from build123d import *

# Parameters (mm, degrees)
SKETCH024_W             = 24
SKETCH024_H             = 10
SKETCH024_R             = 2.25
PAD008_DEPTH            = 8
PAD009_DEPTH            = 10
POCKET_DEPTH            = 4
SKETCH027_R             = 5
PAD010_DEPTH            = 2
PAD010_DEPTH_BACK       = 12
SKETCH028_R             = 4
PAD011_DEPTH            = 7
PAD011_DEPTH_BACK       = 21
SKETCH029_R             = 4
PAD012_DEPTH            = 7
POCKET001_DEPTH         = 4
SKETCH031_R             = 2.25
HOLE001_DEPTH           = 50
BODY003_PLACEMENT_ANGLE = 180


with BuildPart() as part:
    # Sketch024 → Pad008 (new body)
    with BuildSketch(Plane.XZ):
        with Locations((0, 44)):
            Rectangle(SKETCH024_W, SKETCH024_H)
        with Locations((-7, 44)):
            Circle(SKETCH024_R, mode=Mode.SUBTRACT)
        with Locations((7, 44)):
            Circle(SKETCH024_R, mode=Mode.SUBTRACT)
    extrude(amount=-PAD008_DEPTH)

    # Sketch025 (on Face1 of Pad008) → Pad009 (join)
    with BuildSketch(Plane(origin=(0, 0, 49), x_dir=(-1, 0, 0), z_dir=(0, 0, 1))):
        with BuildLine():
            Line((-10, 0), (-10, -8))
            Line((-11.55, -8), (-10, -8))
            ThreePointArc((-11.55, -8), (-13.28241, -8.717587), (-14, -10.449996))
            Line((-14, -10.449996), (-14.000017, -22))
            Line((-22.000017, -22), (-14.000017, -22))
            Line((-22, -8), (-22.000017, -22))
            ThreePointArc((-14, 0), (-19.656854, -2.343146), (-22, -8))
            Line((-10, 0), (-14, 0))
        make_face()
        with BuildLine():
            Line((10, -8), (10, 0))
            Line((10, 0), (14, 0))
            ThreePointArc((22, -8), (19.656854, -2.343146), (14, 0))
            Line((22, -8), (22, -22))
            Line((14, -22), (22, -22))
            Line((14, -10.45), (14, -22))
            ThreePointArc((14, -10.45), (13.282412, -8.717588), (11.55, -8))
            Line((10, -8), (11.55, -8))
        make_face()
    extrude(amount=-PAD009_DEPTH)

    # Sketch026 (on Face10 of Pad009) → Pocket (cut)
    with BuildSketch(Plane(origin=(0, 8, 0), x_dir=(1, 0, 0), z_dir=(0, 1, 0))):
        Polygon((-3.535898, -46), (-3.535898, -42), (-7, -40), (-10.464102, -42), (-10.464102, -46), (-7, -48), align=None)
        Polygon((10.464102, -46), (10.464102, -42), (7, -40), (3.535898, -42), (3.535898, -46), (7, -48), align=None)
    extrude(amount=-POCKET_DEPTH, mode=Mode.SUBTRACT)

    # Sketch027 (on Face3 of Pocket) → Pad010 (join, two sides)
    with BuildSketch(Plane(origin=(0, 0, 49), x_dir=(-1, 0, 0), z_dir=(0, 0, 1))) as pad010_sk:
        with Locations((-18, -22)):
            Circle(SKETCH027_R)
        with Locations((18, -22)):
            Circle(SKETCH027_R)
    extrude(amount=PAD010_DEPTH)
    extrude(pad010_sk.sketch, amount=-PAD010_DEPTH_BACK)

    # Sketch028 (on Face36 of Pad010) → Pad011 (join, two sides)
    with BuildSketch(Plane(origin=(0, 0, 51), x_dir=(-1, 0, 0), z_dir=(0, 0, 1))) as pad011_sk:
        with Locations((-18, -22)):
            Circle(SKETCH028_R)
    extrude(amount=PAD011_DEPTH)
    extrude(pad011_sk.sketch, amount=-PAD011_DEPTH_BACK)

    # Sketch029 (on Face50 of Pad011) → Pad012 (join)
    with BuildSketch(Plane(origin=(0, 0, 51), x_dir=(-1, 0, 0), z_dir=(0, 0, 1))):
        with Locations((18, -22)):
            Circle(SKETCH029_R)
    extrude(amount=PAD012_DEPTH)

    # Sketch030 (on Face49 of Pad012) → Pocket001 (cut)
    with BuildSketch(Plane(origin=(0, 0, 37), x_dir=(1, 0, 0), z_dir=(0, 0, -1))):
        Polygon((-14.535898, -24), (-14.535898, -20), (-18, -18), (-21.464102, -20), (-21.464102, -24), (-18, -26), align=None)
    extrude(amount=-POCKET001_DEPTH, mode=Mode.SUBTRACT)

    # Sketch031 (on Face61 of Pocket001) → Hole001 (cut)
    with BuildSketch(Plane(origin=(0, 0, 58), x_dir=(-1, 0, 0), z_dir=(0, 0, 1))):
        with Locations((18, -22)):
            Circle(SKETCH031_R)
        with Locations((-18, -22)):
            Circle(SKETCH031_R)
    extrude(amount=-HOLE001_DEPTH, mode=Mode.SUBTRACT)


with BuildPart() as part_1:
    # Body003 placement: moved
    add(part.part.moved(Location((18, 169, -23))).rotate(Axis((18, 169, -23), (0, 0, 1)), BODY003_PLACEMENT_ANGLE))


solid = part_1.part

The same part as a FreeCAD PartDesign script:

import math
import FreeCAD as App
import Part
import Sketcher

V = App.Vector
Q = App.Units.Quantity

doc = App.newDocument("Part")
params = doc.addObject("Spreadsheet::Sheet", "Params")
for row, (alias, value) in enumerate([
    ("sketch1_diameter", "4.5 mm"),
    ("sketch1_width", "24 mm"),
    ("sketch1_height", "10 mm"),
    ("pad1_length", "8 mm"),
    ("sketch2_radius", "8.000001 mm"),
    ("sketch2_width", "4 mm"),
    ("sketch2_height", "14 mm"),
    ("sketch2_radius2", "2.45 mm"),
    ("pad2_length", "10 mm"),
    ("sketch3_height", "4 mm"),
    ("sketch3_length", "4 mm"),
    ("pocket1_length", "4 mm"),
    ("sketch4_diameter", "10 mm"),
    ("pad3_length", "2 mm"),
    ("pad3_length2", "12 mm"),
    ("sketch5_diameter", "8 mm"),
    ("pad4_length", "7 mm"),
    ("pad4_length2", "21 mm"),
    ("sketch6_diameter", "8 mm"),
    ("pad5_length", "7 mm"),
    ("sketch7_height", "4 mm"),
    ("sketch7_length", "4 mm"),
    ("pocket2_length", "4 mm"),
    ("sketch8_diameter", "4.5 mm"),
    ("pocket3_length", "50 mm"),
], start=1):
    params.set(f"A{row}", alias)
    params.set(f"B{row}", "=" + value)
    params.setAlias(f"B{row}", alias)

body = doc.addObject("PartDesign::Body", "Body")

# Sketch on XZ plane
sketch1 = body.newObject("Sketcher::SketchObject", "Sketch")
sketch1.AttachmentSupport = (doc.getObject("XZ_Plane"), [""])
sketch1.MapMode = "FlatFace"
sketch1.addGeometry(Part.LineSegment(V(-12, 49, 0), V(-12, 39, 0)), False)
sketch1.addGeometry(Part.LineSegment(V(-12, 39, 0), V(12, 39, 0)), False)
sketch1.addGeometry(Part.LineSegment(V(12, 39, 0), V(12, 49, 0)), False)
sketch1.addGeometry(Part.LineSegment(V(12, 49, 0), V(-12, 49, 0)), False)
sketch1.addGeometry(Part.Circle(V(-7, 44, 0), V(0, 0, 1), 2.2), False)
sketch1.addGeometry(Part.Circle(V(7, 44, 0), V(0, 0, 1), 2.2), False)
sketch1.addConstraint(Sketcher.Constraint("Coincident", 0, 2, 1, 1))
sketch1.addConstraint(Sketcher.Constraint("Coincident", 1, 2, 2, 1))
sketch1.addConstraint(Sketcher.Constraint("Coincident", 2, 2, 3, 1))
sketch1.addConstraint(Sketcher.Constraint("Coincident", 3, 2, 0, 1))
sketch1.addConstraint(Sketcher.Constraint("Vertical", 0))
sketch1.addConstraint(Sketcher.Constraint("Horizontal", 1))
sketch1.addConstraint(Sketcher.Constraint("Vertical", 2))
sketch1.addConstraint(Sketcher.Constraint("Horizontal", 3))
sketch1.addConstraint(Sketcher.Constraint("Equal", 4, 5))
sketch1.addConstraint(Sketcher.Constraint("Symmetric", 4, 3, 5, 3, -2))
sketch1.addConstraint(Sketcher.Constraint("Diameter", 4, Q("4.5 mm")))
sketch1.addConstraint(Sketcher.Constraint("DistanceX", 1, 1, 1, 2, Q("24 mm")))
sketch1.addConstraint(Sketcher.Constraint("DistanceY", 0, 2, 0, 1, Q("10 mm")))
sketch1.addConstraint(Sketcher.Constraint("DistanceX", 4, 3, -1, 1, Q("7 mm")))
sketch1.addConstraint(Sketcher.Constraint("DistanceY", -1, 1, 4, 3, Q("44 mm")))
sketch1.addConstraint(Sketcher.Constraint("DistanceX", 0, 2, -1, 1, Q("12 mm")))
sketch1.addConstraint(Sketcher.Constraint("DistanceY", -1, 1, 0, 2, Q("39 mm")))
sketch1.setExpression("Constraints[10]", "Params.sketch1_diameter")
sketch1.setExpression("Constraints[11]", "Params.sketch1_width")
sketch1.setExpression("Constraints[12]", "Params.sketch1_height")
pad1 = body.newObject("PartDesign::Pad", "Pad")
pad1.Profile = sketch1
pad1.setExpression("Length", "Params.pad1_length")
pad1.Reversed = True

# Sketch on XY plane
sketch2 = body.newObject("Sketcher::SketchObject", "Sketch001")
sketch2.AttachmentSupport = (doc.getObject("XY_Plane"), [""])
sketch2.MapMode = "FlatFace"
sketch2.AttachmentOffset = App.Placement(V(0, 0, 49), App.Rotation())
sketch2.addGeometry(Part.LineSegment(V(10, 8, 0), V(10, 0, 0)), False)
sketch2.addGeometry(Part.LineSegment(V(10, 0, 0), V(14, 0, 0)), False)
sketch2.addGeometry(Part.ArcOfCircle(Part.Circle(V(14, 8, 0), V(0, 0, 1), 8), math.radians(-90), math.radians(0)), False)
sketch2.addGeometry(Part.LineSegment(V(22, 8, 0), V(22, 22, 0)), False)
sketch2.addGeometry(Part.LineSegment(V(22, 22, 0), V(14, 22, 0)), False)
sketch2.addGeometry(Part.LineSegment(V(14, 22, 0), V(14, 10.4, 0)), False)
sketch2.addGeometry(Part.ArcOfCircle(Part.Circle(V(11.5, 10.5, 0), V(0, 0, 1), 2.5), math.radians(-90), math.radians(0)), False)
sketch2.addGeometry(Part.LineSegment(V(11.6, 8, 0), V(10, 8, 0)), False)
sketch2.addGeometry(Part.LineSegment(V(-10, 0, 0), V(-10, 8, 0)), False)
sketch2.addGeometry(Part.LineSegment(V(-10, 8, 0), V(-11.6, 8, 0)), False)
sketch2.addGeometry(Part.ArcOfCircle(Part.Circle(V(-11.6, 10.4, 0), V(0, 0, 1), 2.4), math.radians(180), math.radians(270)), False)
sketch2.addGeometry(Part.LineSegment(V(-14, 10.4, 0), V(-14, 22, 0)), False)
sketch2.addGeometry(Part.LineSegment(V(-14, 22, 0), V(-22, 22, 0)), False)
sketch2.addGeometry(Part.LineSegment(V(-22, 22, 0), V(-22, 8, 0)), False)
sketch2.addGeometry(Part.ArcOfCircle(Part.Circle(V(-14, 8, 0), V(0, 0, 1), 8), math.radians(-180), math.radians(-90)), False)
sketch2.addGeometry(Part.LineSegment(V(-14, 0, 0), V(-10, 0, 0)), False)
sketch2.addConstraint(Sketcher.Constraint("Coincident", 0, 2, 1, 1))
sketch2.addConstraint(Sketcher.Constraint("Tangent", 1, 2, 2, 1))
sketch2.addConstraint(Sketcher.Constraint("Tangent", 2, 2, 3, 1))
sketch2.addConstraint(Sketcher.Constraint("Coincident", 3, 2, 4, 1))
sketch2.addConstraint(Sketcher.Constraint("Coincident", 4, 2, 5, 1))
sketch2.addConstraint(Sketcher.Constraint("Tangent", 5, 2, 6, 2))
sketch2.addConstraint(Sketcher.Constraint("Tangent", 6, 1, 7, 1))
sketch2.addConstraint(Sketcher.Constraint("Coincident", 7, 2, 0, 1))
sketch2.addConstraint(Sketcher.Constraint("Coincident", 8, 2, 9, 1))
sketch2.addConstraint(Sketcher.Constraint("Tangent", 9, 2, 10, 2))
sketch2.addConstraint(Sketcher.Constraint("Tangent", 10, 1, 11, 1))
sketch2.addConstraint(Sketcher.Constraint("Coincident", 11, 2, 12, 1))
sketch2.addConstraint(Sketcher.Constraint("Coincident", 12, 2, 13, 1))
sketch2.addConstraint(Sketcher.Constraint("Tangent", 13, 2, 14, 1))
sketch2.addConstraint(Sketcher.Constraint("Tangent", 14, 2, 15, 1))
sketch2.addConstraint(Sketcher.Constraint("Coincident", 15, 2, 8, 1))
sketch2.addConstraint(Sketcher.Constraint("Vertical", 0))
sketch2.addConstraint(Sketcher.Constraint("Horizontal", 1))
sketch2.addConstraint(Sketcher.Constraint("Horizontal", 4))
sketch2.addConstraint(Sketcher.Constraint("Horizontal", 7))
sketch2.addConstraint(Sketcher.Constraint("Vertical", 8))
sketch2.addConstraint(Sketcher.Constraint("Horizontal", 9))
sketch2.addConstraint(Sketcher.Constraint("Vertical", 11))
sketch2.addConstraint(Sketcher.Constraint("Horizontal", 12))
sketch2.addConstraint(Sketcher.Constraint("Vertical", 13))
sketch2.addConstraint(Sketcher.Constraint("Horizontal", 15))
sketch2.addConstraint(Sketcher.Constraint("Equal", 6, 10))
sketch2.addConstraint(Sketcher.Constraint("Equal", 2, 14))
sketch2.addConstraint(Sketcher.Constraint("Symmetric", 1, 2, 14, 2, -1, 1))
sketch2.addConstraint(Sketcher.Constraint("Symmetric", 6, 3, 10, 3, -2))
sketch2.addConstraint(Sketcher.Constraint("Symmetric", 0, 2, 15, 2, -2))
sketch2.addConstraint(Sketcher.Constraint("Parallel", 3, 5))
sketch2.addConstraint(Sketcher.Constraint("Horizontal", 14, 3, 2, 2))
sketch2.addConstraint(Sketcher.Constraint("Horizontal", 2, 2, 6, 1))
sketch2.addConstraint(Sketcher.Constraint("Horizontal", 4, 2, 11, 2))
sketch2.addConstraint(Sketcher.Constraint("Vertical", 1, 2, 5, 2))
sketch2.addConstraint(Sketcher.Constraint("Radius", 2, Q("8.000001 mm")))
sketch2.addConstraint(Sketcher.Constraint("DistanceX", 1, 1, 1, 2, Q("4 mm")))
sketch2.addConstraint(Sketcher.Constraint("DistanceY", 13, 2, 13, 1, Q("14 mm")))
sketch2.addConstraint(Sketcher.Constraint("Radius", 6, Q("2.45 mm")))
sketch2.addConstraint(Sketcher.Constraint("DistanceX", -1, 1, 2, 3, Q("13.999999 mm")))
sketch2.setExpression("Constraints[36]", "Params.sketch2_radius")
sketch2.setExpression("Constraints[37]", "Params.sketch2_width")
sketch2.setExpression("Constraints[38]", "Params.sketch2_height")
sketch2.setExpression("Constraints[39]", "Params.sketch2_radius2")
pad2 = body.newObject("PartDesign::Pad", "Pad001")
pad2.Profile = sketch2
pad2.setExpression("Length", "Params.pad2_length")
pad2.Reversed = True

# Sketch on XZ plane
sketch3 = body.newObject("Sketcher::SketchObject", "Sketch002")
sketch3.AttachmentSupport = (doc.getObject("XZ_Plane"), [""])
sketch3.MapMode = "FlatFace"
sketch3.AttachmentOffset = App.Placement(V(0, 0, -8), App.Rotation())
sketch3.addGeometry(Part.LineSegment(V(-3.5, 46, 0), V(-3.5, 42, 0)), False)
sketch3.addGeometry(Part.LineSegment(V(-3.5, 42, 0), V(-7, 40, 0)), False)
sketch3.addGeometry(Part.LineSegment(V(-7, 40, 0), V(-10.5, 42, 0)), False)
sketch3.addGeometry(Part.LineSegment(V(-10.5, 42, 0), V(-10.5, 46, 0)), False)
sketch3.addGeometry(Part.LineSegment(V(-10.5, 46, 0), V(-7, 48, 0)), False)
sketch3.addGeometry(Part.LineSegment(V(-7, 48, 0), V(-3.5, 46, 0)), False)
sketch3.addGeometry(Part.LineSegment(V(10.5, 46, 0), V(10.5, 42, 0)), False)
sketch3.addGeometry(Part.LineSegment(V(10.5, 42, 0), V(7, 40, 0)), False)
sketch3.addGeometry(Part.LineSegment(V(7, 40, 0), V(3.5, 42, 0)), False)
sketch3.addGeometry(Part.LineSegment(V(3.5, 42, 0), V(3.5, 46, 0)), False)
sketch3.addGeometry(Part.LineSegment(V(3.5, 46, 0), V(7, 48, 0)), False)
sketch3.addGeometry(Part.LineSegment(V(7, 48, 0), V(10.5, 46, 0)), False)
sketch3.addConstraint(Sketcher.Constraint("Coincident", 0, 2, 1, 1))
sketch3.addConstraint(Sketcher.Constraint("Coincident", 1, 2, 2, 1))
sketch3.addConstraint(Sketcher.Constraint("Coincident", 2, 2, 3, 1))
sketch3.addConstraint(Sketcher.Constraint("Coincident", 3, 2, 4, 1))
sketch3.addConstraint(Sketcher.Constraint("Coincident", 4, 2, 5, 1))
sketch3.addConstraint(Sketcher.Constraint("Coincident", 5, 2, 0, 1))
sketch3.addConstraint(Sketcher.Constraint("Coincident", 6, 2, 7, 1))
sketch3.addConstraint(Sketcher.Constraint("Coincident", 7, 2, 8, 1))
sketch3.addConstraint(Sketcher.Constraint("Coincident", 8, 2, 9, 1))
sketch3.addConstraint(Sketcher.Constraint("Coincident", 9, 2, 10, 1))
sketch3.addConstraint(Sketcher.Constraint("Coincident", 10, 2, 11, 1))
sketch3.addConstraint(Sketcher.Constraint("Coincident", 11, 2, 6, 1))
sketch3.addConstraint(Sketcher.Constraint("Vertical", 0))
sketch3.addConstraint(Sketcher.Constraint("Vertical", 3))
sketch3.addConstraint(Sketcher.Constraint("Vertical", 6))
sketch3.addConstraint(Sketcher.Constraint("Vertical", 9))
sketch3.addConstraint(Sketcher.Constraint("Symmetric", 2, 2, 6, 2, -2))
sketch3.addConstraint(Sketcher.Constraint("Symmetric", 1, 2, 7, 2, -2))
sketch3.addConstraint(Sketcher.Constraint("Symmetric", 0, 2, 8, 2, -2))
sketch3.addConstraint(Sketcher.Constraint("Symmetric", 4, 2, 10, 2, -2))
sketch3.addConstraint(Sketcher.Constraint("Parallel", 1, 4))
sketch3.addConstraint(Sketcher.Constraint("Parallel", 2, 5))
sketch3.addConstraint(Sketcher.Constraint("Parallel", 4, 7))
sketch3.addConstraint(Sketcher.Constraint("Parallel", 7, 10))
sketch3.addConstraint(Sketcher.Constraint("Parallel", 8, 11))
sketch3.addConstraint(Sketcher.Constraint("Horizontal", 0, 2, 2, 2))
sketch3.addConstraint(Sketcher.Constraint("Horizontal", 3, 2, 5, 2))
sketch3.addConstraint(Sketcher.Constraint("DistanceY", 0, 2, 0, 1, Q("4 mm")))
sketch3.addConstraint(Sketcher.Constraint("Angle", 1, Q("-150.000003 deg")))
sketch3.addConstraint(Sketcher.Constraint("Distance", 1, Q("4 mm")))
sketch3.addConstraint(Sketcher.Constraint("DistanceY", -1, 1, 0, 2, Q("42 mm")))
sketch3.addConstraint(Sketcher.Constraint("DistanceX", 1, 2, -1, 1, Q("7 mm")))
sketch3.setExpression("Constraints[27]", "Params.sketch3_height")
sketch3.setExpression("Constraints[29]", "Params.sketch3_length")
pocket1 = body.newObject("PartDesign::Pocket", "Pocket")
pocket1.Profile = sketch3
pocket1.setExpression("Length", "Params.pocket1_length")
pocket1.Reversed = True

# Sketch on XY plane
sketch4 = body.newObject("Sketcher::SketchObject", "Sketch003")
sketch4.AttachmentSupport = (doc.getObject("XY_Plane"), [""])
sketch4.MapMode = "FlatFace"
sketch4.AttachmentOffset = App.Placement(V(0, 0, 49), App.Rotation())
sketch4.addGeometry(Part.Circle(V(18, 22, 0), V(0, 0, 1), 5), False)
sketch4.addGeometry(Part.Circle(V(-18, 22, 0), V(0, 0, 1), 5), False)
sketch4.addConstraint(Sketcher.Constraint("Equal", 0, 1))
sketch4.addConstraint(Sketcher.Constraint("Symmetric", 0, 3, 1, 3, -2))
sketch4.addConstraint(Sketcher.Constraint("Diameter", 0, Q("10 mm")))
sketch4.addConstraint(Sketcher.Constraint("DistanceX", -1, 1, 0, 3, Q("18 mm")))
sketch4.addConstraint(Sketcher.Constraint("DistanceY", -1, 1, 0, 3, Q("22 mm")))
sketch4.setExpression("Constraints[2]", "Params.sketch4_diameter")
pad3 = body.newObject("PartDesign::Pad", "Pad002")
pad3.Profile = sketch4
pad3.Type = "TwoLengths"
pad3.setExpression("Length", "Params.pad3_length")
pad3.setExpression("Length2", "Params.pad3_length2")

# Sketch on XY plane
sketch5 = body.newObject("Sketcher::SketchObject", "Sketch004")
sketch5.AttachmentSupport = (doc.getObject("XY_Plane"), [""])
sketch5.MapMode = "FlatFace"
sketch5.AttachmentOffset = App.Placement(V(0, 0, 51), App.Rotation())
sketch5.addGeometry(Part.Circle(V(18, 22, 0), V(0, 0, 1), 4), False)
sketch5.addConstraint(Sketcher.Constraint("Diameter", 0, Q("8 mm")))
sketch5.addConstraint(Sketcher.Constraint("DistanceX", -1, 1, 0, 3, Q("18 mm")))
sketch5.addConstraint(Sketcher.Constraint("DistanceY", -1, 1, 0, 3, Q("22 mm")))
sketch5.setExpression("Constraints[0]", "Params.sketch5_diameter")
pad4 = body.newObject("PartDesign::Pad", "Pad003")
pad4.Profile = sketch5
pad4.Type = "TwoLengths"
pad4.setExpression("Length", "Params.pad4_length")
pad4.setExpression("Length2", "Params.pad4_length2")

# Sketch on XY plane
sketch6 = body.newObject("Sketcher::SketchObject", "Sketch005")
sketch6.AttachmentSupport = (doc.getObject("XY_Plane"), [""])
sketch6.MapMode = "FlatFace"
sketch6.AttachmentOffset = App.Placement(V(0, 0, 51), App.Rotation())
sketch6.addGeometry(Part.Circle(V(-18, 22, 0), V(0, 0, 1), 4), False)
sketch6.addConstraint(Sketcher.Constraint("Diameter", 0, Q("8 mm")))
sketch6.addConstraint(Sketcher.Constraint("DistanceX", 0, 3, -1, 1, Q("18 mm")))
sketch6.addConstraint(Sketcher.Constraint("DistanceY", -1, 1, 0, 3, Q("22 mm")))
sketch6.setExpression("Constraints[0]", "Params.sketch6_diameter")
pad5 = body.newObject("PartDesign::Pad", "Pad004")
pad5.Profile = sketch6
pad5.setExpression("Length", "Params.pad5_length")

# Sketch on XY plane
sketch7 = body.newObject("Sketcher::SketchObject", "Sketch006")
sketch7.AttachmentSupport = (doc.getObject("XY_Plane"), [""])
sketch7.MapMode = "FlatFace"
sketch7.AttachmentOffset = App.Placement(V(0, 0, 37), App.Rotation())
sketch7.addGeometry(Part.LineSegment(V(-14.5, 24, 0), V(-14.5, 20, 0)), False)
sketch7.addGeometry(Part.LineSegment(V(-14.5, 20, 0), V(-18, 18, 0)), False)
sketch7.addGeometry(Part.LineSegment(V(-18, 18, 0), V(-21.5, 20, 0)), False)
sketch7.addGeometry(Part.LineSegment(V(-21.5, 20, 0), V(-21.5, 24, 0)), False)
sketch7.addGeometry(Part.LineSegment(V(-21.5, 24, 0), V(-18, 26, 0)), False)
sketch7.addGeometry(Part.LineSegment(V(-18, 26, 0), V(-14.5, 24, 0)), False)
sketch7.addConstraint(Sketcher.Constraint("Coincident", 0, 2, 1, 1))
sketch7.addConstraint(Sketcher.Constraint("Coincident", 1, 2, 2, 1))
sketch7.addConstraint(Sketcher.Constraint("Coincident", 2, 2, 3, 1))
sketch7.addConstraint(Sketcher.Constraint("Coincident", 3, 2, 4, 1))
sketch7.addConstraint(Sketcher.Constraint("Coincident", 4, 2, 5, 1))
sketch7.addConstraint(Sketcher.Constraint("Coincident", 5, 2, 0, 1))
sketch7.addConstraint(Sketcher.Constraint("Vertical", 0))
sketch7.addConstraint(Sketcher.Constraint("Vertical", 3))
sketch7.addConstraint(Sketcher.Constraint("Parallel", 1, 4))
sketch7.addConstraint(Sketcher.Constraint("Parallel", 2, 5))
sketch7.addConstraint(Sketcher.Constraint("Horizontal", 0, 2, 2, 2))
sketch7.addConstraint(Sketcher.Constraint("Horizontal", 3, 2, 5, 2))
sketch7.addConstraint(Sketcher.Constraint("Vertical", 1, 2, 4, 2))
sketch7.addConstraint(Sketcher.Constraint("DistanceY", 0, 2, 0, 1, Q("4 mm")))
sketch7.addConstraint(Sketcher.Constraint("Angle", 1, Q("-150.000003 deg")))
sketch7.addConstraint(Sketcher.Constraint("Distance", 1, Q("4 mm")))
sketch7.addConstraint(Sketcher.Constraint("DistanceY", -1, 1, 0, 2, Q("20 mm")))
sketch7.addConstraint(Sketcher.Constraint("DistanceX", 1, 2, -1, 1, Q("18 mm")))
sketch7.setExpression("Constraints[13]", "Params.sketch7_height")
sketch7.setExpression("Constraints[15]", "Params.sketch7_length")
pocket2 = body.newObject("PartDesign::Pocket", "Pocket001")
pocket2.Profile = sketch7
pocket2.setExpression("Length", "Params.pocket2_length")
pocket2.Reversed = True

# Sketch on XY plane
sketch8 = body.newObject("Sketcher::SketchObject", "Sketch007")
sketch8.AttachmentSupport = (doc.getObject("XY_Plane"), [""])
sketch8.MapMode = "FlatFace"
sketch8.AttachmentOffset = App.Placement(V(0, 0, 58), App.Rotation())
sketch8.addGeometry(Part.Circle(V(-18, 22, 0), V(0, 0, 1), 2.2), False)
sketch8.addGeometry(Part.Circle(V(18, 22, 0), V(0, 0, 1), 2.2), False)
sketch8.addConstraint(Sketcher.Constraint("Equal", 0, 1))
sketch8.addConstraint(Sketcher.Constraint("Symmetric", 0, 3, 1, 3, -2))
sketch8.addConstraint(Sketcher.Constraint("Diameter", 0, Q("4.5 mm")))
sketch8.addConstraint(Sketcher.Constraint("DistanceX", 0, 3, -1, 1, Q("18 mm")))
sketch8.addConstraint(Sketcher.Constraint("DistanceY", -1, 1, 0, 3, Q("22 mm")))
sketch8.setExpression("Constraints[2]", "Params.sketch8_diameter")
pocket3 = body.newObject("PartDesign::Pocket", "Pocket002")
pocket3.Profile = sketch8
pocket3.setExpression("Length", "Params.pocket3_length")
body2 = doc.addObject("PartDesign::Body", "Body001")
doc.recompute()

body.Placement = App.Placement(V(18, 169, -23), App.Rotation(V(0, 0, 1), 180))
boolean = body2.newObject("PartDesign::Boolean", "Boolean")
boolean.Type = "Fuse"
boolean.addObjects([body])

doc.recompute()
